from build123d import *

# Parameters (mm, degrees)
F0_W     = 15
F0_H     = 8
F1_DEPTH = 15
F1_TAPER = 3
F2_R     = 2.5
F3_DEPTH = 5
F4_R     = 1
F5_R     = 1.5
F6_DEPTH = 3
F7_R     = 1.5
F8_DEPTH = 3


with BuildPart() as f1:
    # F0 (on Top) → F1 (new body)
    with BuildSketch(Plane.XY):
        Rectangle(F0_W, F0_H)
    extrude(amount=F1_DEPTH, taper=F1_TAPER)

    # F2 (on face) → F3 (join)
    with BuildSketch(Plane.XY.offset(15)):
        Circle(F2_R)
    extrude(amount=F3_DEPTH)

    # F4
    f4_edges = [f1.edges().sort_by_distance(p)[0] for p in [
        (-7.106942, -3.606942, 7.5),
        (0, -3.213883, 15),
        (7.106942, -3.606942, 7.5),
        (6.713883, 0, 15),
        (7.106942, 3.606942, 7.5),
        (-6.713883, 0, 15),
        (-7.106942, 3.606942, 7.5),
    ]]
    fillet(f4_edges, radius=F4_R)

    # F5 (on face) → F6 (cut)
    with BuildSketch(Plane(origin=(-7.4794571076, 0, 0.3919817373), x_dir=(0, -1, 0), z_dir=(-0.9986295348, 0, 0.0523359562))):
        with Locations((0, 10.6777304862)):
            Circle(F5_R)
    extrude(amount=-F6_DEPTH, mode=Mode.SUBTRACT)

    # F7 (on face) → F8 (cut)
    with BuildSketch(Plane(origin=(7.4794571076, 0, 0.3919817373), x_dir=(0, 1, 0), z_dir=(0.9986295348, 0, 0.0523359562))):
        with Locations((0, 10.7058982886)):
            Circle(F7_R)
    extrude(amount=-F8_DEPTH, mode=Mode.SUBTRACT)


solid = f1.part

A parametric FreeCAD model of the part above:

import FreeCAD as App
import Part
import Sketcher
from FreeCAD import Vector
Q = App.Units.Quantity


def edges_at(feature, points):
    """Names of the edges that pass closest to the given points."""
    edges = feature.Shape.Edges
    near = lambda p: min(range(len(edges)), key=lambda i: edges[i].distToShape(Part.Vertex(*p))[0])
    return sorted({f"Edge{near(p) + 1}" for p in points})


def add_polygon(sketch, points):
    """Adds a closed chain of lines whose ends are joined by coincident constraints."""
    first, n = sketch.GeometryCount, len(points)
    for a, b in zip(points, points[1:] + points[:1]):
        sketch.addGeometry(Part.LineSegment(App.Vector(*a, 0), App.Vector(*b, 0)), False)
    for i in range(n):
        sketch.addConstraint(Sketcher.Constraint("Coincident", first + i, 2, first + (i + 1) % n, 1))

doc = App.newDocument("Part")
params = doc.addObject("Spreadsheet::Sheet", "Params")
for row, (alias, value) in enumerate([
    ("sketch1_width", "15 mm"),
    ("sketch1_height", "8 mm"),
    ("pad1_length", "15 mm"),
    ("pad1_taper", "-3 deg"),
    ("sketch2_diameter", "5 mm"),
    ("pad2_length", "5 mm"),
    ("fillet_radius", "1 mm"),
    ("sketch3_diameter", "3 mm"),
    ("pocket1_length", "3 mm"),
    ("sketch4_diameter", "3 mm"),
    ("pocket2_length", "3 mm"),
], start=1):
    params.set(f"A{row}", alias)
    params.set(f"B{row}", "=" + value)
    params.setAlias(f"B{row}", alias)

body = doc.addObject("PartDesign::Body", "Body")

# Sketch on XY plane
sketch1 = doc.addObject("Sketcher::SketchObject", "Sketch")
body.addObject(sketch1)
sketch1.AttachmentSupport = (doc.XY_Plane, [""])
sketch1.MapMode = "FlatFace"
add_polygon(sketch1, [(-8, 4), (-8, -4), (8, -4), (8, 4)])  # lines 0-3
sketch1.addConstraint(Sketcher.Constraint("Vertical", 0))
sketch1.addConstraint(Sketcher.Constraint("Horizontal", 1))
sketch1.addConstraint(Sketcher.Constraint("Vertical", 2))
sketch1.addConstraint(Sketcher.Constraint("Horizontal", 3))
sketch1.addConstraint(Sketcher.Constraint("Symmetric", 0, 2, 2, 2, -1, 1))
sketch1.addConstraint(Sketcher.Constraint("DistanceX", 1, 1, 1, 2, Q("15 mm")))
sketch1.addConstraint(Sketcher.Constraint("DistanceY", 0, 2, 0, 1, Q("8 mm")))
sketch1.setExpression("Constraints[9]", "Params.sketch1_width")
sketch1.setExpression("Constraints[10]", "Params.sketch1_height")
pad1 = doc.addObject("PartDesign::Pad", "Pad")
body.addObject(pad1)
pad1.Profile = sketch1
pad1.setExpression("Length", "Params.pad1_length")
pad1.setExpression("TaperAngle", "Params.pad1_taper")

# Sketch on XY plane
sketch2 = doc.addObject("Sketcher::SketchObject", "Sketch001")
body.addObject(sketch2)
sketch2.AttachmentSupport = (doc.XY_Plane, [""])
sketch2.MapMode = "FlatFace"
sketch2.AttachmentOffset = App.Placement(Vector(0, 0, 15), App.Rotation())
sketch2.addGeometry(Part.Circle(Vector(0, 0, 0), Vector(0, 0, 1), 2.5), False)
sketch2.addConstraint(Sketcher.Constraint("Coincident", 0, 3, -1, 1))
sketch2.addConstraint(Sketcher.Constraint("Diameter", 0, Q("5 mm")))
sketch2.setExpression("Constraints[1]", "Params.sketch2_diameter")
pad2 = doc.addObject("PartDesign::Pad", "Pad001")
body.addObject(pad2)
pad2.Profile = sketch2
pad2.setExpression("Length", "Params.pad2_length")
doc.recompute()

fillet = doc.addObject("PartDesign::Fillet", "Fillet")
body.addObject(fillet)
fillet.Base = (pad2, edges_at(pad2, [
    (-7.107, -3.607, 7.5),
    (0, -3.214, 15),
    (7.107, -3.607, 7.5),
    (6.714, 0, 15),
    (7.107, 3.607, 7.5),
    (-6.714, 0, 15),
    (-7.107, 3.607, 7.5),
]))
fillet.setExpression("Radius", "Params.fillet_radius")

# Sketch on an angled plane
sketch3 = doc.addObject("Sketcher::SketchObject", "Sketch002")
body.addObject(sketch3)
sketch3.Placement = App.Placement(Vector(-7.479457, 0, 0.391982), App.Rotation(Vector(0, -1, 0), Vector(0.052335956, 0, 0.998629535), Vector(-0.998629535, 0, 0.052335956), "ZXY"))
sketch3.addGeometry(Part.Circle(Vector(0, 10.7, 0), Vector(0, 0, 1), 1.5), False)
sketch3.addConstraint(Sketcher.Constraint("PointOnObject", 0, 3, -2))
sketch3.addConstraint(Sketcher.Constraint("Diameter", 0, Q("3 mm")))
sketch3.addConstraint(Sketcher.Constraint("DistanceY", -1, 1, 0, 3, Q("10.67773 mm")))
sketch3.setExpression("Constraints[1]", "Params.sketch3_diameter")
pocket1 = doc.addObject("PartDesign::Pocket", "Pocket")
body.addObject(pocket1)
pocket1.Profile = sketch3
pocket1.setExpression("Length", "Params.pocket1_length")

# Sketch on an angled plane
sketch4 = doc.addObject("Sketcher::SketchObject", "Sketch003")
body.addObject(sketch4)
sketch4.Placement = App.Placement(Vector(7.479457, 0, 0.391982), App.Rotation(Vector(0, 1, 0), Vector(-0.052335956, 0, 0.998629535), Vector(0.998629535, 0, 0.052335956), "ZXY"))
sketch4.addGeometry(Part.Circle(Vector(0, 10.7, 0), Vector(0, 0, 1), 1.5), False)
sketch4.addConstraint(Sketcher.Constraint("PointOnObject", 0, 3, -2))
sketch4.addConstraint(Sketcher.Constraint("Diameter", 0, Q("3 mm")))
sketch4.addConstraint(Sketcher.Constraint("DistanceY", -1, 1, 0, 3, Q("10.705898 mm")))
sketch4.setExpression("Constraints[1]", "Params.sketch4_diameter")
pocket2 = doc.addObject("PartDesign::Pocket", "Pocket001")
body.addObject(pocket2)
pocket2.Profile = sketch4
pocket2.setExpression("Length", "Params.pocket2_length")

doc.recompute()
